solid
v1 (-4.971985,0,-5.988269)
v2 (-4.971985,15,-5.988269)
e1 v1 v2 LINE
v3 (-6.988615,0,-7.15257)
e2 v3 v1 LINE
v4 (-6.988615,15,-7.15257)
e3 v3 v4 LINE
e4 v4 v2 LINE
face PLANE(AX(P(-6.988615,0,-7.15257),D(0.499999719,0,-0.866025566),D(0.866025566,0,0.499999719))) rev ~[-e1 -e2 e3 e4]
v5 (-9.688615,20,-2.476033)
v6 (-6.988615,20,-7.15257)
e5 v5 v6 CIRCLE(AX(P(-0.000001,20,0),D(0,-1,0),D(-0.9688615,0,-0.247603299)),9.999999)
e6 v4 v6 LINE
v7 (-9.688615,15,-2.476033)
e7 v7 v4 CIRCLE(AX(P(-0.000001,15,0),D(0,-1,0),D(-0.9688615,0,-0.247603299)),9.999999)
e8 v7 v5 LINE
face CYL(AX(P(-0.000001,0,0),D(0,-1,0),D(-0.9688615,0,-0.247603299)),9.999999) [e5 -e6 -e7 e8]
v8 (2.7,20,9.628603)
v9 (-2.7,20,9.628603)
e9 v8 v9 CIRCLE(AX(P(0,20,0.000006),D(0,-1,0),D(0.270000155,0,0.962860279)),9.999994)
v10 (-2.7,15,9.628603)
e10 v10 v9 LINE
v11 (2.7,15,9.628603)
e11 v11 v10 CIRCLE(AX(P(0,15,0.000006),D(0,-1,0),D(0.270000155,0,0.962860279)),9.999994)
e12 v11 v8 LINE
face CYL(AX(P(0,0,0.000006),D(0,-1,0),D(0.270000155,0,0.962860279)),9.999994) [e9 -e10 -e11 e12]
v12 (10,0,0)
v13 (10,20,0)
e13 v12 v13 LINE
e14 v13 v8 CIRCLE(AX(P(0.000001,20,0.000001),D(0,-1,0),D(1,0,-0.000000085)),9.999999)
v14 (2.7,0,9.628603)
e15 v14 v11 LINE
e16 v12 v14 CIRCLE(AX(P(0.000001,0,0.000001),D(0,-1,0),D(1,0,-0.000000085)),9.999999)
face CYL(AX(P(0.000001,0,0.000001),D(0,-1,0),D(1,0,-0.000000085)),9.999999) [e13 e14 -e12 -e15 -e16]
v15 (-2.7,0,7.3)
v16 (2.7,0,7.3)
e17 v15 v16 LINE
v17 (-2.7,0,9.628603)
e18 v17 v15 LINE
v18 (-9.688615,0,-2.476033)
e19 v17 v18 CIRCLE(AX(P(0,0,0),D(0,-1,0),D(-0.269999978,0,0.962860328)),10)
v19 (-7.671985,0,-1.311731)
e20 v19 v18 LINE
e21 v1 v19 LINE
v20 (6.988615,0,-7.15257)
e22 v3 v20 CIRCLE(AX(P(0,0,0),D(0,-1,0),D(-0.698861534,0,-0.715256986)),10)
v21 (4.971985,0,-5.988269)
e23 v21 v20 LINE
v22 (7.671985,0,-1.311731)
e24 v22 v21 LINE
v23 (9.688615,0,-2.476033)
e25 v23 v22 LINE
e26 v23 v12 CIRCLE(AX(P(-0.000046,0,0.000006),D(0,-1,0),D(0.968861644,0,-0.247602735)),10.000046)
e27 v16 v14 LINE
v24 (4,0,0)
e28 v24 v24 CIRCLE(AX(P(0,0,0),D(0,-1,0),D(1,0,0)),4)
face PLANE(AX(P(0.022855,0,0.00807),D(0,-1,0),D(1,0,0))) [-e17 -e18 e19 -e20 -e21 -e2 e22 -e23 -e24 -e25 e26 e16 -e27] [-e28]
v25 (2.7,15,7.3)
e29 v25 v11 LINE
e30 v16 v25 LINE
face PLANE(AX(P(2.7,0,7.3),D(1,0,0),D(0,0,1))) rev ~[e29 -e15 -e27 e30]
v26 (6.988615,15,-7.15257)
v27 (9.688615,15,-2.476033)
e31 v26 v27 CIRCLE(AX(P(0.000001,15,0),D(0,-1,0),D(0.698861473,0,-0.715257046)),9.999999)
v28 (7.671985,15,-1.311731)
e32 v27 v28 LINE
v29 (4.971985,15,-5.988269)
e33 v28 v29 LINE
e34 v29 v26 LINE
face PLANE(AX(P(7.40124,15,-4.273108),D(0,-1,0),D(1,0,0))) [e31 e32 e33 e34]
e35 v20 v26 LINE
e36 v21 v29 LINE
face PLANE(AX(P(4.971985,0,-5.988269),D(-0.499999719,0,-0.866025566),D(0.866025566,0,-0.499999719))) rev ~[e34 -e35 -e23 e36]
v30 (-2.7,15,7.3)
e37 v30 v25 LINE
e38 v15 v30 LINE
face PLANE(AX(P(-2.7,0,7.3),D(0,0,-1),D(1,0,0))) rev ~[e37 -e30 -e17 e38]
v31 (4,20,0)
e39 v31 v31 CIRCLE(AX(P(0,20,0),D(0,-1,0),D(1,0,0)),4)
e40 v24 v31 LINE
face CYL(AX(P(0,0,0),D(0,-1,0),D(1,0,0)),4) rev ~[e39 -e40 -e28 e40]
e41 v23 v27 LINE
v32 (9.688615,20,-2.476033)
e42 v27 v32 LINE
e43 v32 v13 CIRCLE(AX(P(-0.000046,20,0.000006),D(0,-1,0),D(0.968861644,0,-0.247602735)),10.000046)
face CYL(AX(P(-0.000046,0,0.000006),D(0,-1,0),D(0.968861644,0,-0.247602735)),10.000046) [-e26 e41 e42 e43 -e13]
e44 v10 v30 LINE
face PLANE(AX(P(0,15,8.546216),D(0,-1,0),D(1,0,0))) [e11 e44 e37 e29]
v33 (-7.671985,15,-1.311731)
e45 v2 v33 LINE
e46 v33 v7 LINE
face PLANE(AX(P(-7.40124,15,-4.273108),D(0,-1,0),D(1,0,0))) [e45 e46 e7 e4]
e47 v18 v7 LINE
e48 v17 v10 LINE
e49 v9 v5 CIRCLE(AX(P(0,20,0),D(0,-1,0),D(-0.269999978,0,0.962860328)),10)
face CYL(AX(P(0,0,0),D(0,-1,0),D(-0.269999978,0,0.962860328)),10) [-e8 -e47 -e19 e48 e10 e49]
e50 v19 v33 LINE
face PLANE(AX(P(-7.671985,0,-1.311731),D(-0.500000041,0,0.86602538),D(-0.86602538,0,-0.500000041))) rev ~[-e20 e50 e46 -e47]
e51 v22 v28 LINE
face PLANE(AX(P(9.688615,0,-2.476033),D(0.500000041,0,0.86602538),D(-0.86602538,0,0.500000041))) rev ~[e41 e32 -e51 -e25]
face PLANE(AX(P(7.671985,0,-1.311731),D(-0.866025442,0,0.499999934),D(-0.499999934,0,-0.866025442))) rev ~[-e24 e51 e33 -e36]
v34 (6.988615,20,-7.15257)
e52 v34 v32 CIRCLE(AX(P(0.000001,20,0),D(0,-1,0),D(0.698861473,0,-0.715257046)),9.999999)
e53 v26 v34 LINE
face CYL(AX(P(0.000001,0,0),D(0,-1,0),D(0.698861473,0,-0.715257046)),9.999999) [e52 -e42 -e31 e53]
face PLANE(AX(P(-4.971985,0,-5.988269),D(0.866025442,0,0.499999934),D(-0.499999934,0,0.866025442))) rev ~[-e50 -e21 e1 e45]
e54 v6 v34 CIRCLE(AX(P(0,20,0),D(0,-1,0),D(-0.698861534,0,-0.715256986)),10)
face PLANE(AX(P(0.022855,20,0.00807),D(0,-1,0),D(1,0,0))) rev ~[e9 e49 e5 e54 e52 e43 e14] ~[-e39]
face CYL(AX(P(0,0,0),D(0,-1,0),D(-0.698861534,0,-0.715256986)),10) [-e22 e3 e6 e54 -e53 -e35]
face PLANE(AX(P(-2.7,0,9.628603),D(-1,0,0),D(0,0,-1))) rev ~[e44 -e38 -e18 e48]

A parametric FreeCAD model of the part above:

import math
import FreeCAD as App
import Part
import Sketcher
from FreeCAD import Vector
Q = App.Units.Quantity

doc = App.newDocument("Part")
body = doc.addObject("PartDesign::Body", "Body")

sketch1 = body.newObject("Sketcher::SketchObject", "Sketch")
sketch1.AttachmentSupport = (doc.getObject("XZ_Plane"), [""])
sketch1.MapMode = "FlatFace"
sketch1.addGeometry([
    Part.ArcOfCircle(Part.Circle(Vector(-0.000046, 0.000006, 0), Vector(0, 0, 1), 10.000046), math.radians(-14.3357), math.radians(-0.000033)),
    Part.ArcOfCircle(Part.Circle(Vector(0.000001, 0.000001, 0), Vector(0, 0, 1), 9.999999), math.radians(-0.000005), math.radians(74.335739)),
    Part.ArcOfCircle(Part.Circle(Vector(0, 0.000006, 0), Vector(0, 0, 1), 9.999994), math.radians(74.335724), math.radians(105.664276)),
    Part.ArcOfCircle(Part.Circle(Vector(0, 0, 0), Vector(0, 0, 1), 10), math.radians(105.664266), math.radians(194.335733)),
    Part.ArcOfCircle(Part.Circle(Vector(-0.000001, 0, 0), Vector(0, 0, 1), 9.999999), math.radians(-165.664267), math.radians(-134.335731)),
    Part.ArcOfCircle(Part.Circle(Vector(0, 0, 0), Vector(0, 0, 1), 10), math.radians(-134.335736), math.radians(-45.664264)),
    Part.ArcOfCircle(Part.Circle(Vector(0.000001, 0, 0), Vector(0, 0, 1), 9.999999), math.radians(-45.664269), math.radians(-14.335733)),
    Part.Circle(Vector(0, 0, 0), Vector(0, 0, 1), 4),
], False)
sketch1.addConstraint([
    Sketcher.Constraint("Coincident", 0, 2, 1, 1),
    Sketcher.Constraint("Coincident", 1, 2, 2, 1),
    Sketcher.Constraint("Coincident", 2, 2, 3, 1),
    Sketcher.Constraint("Coincident", 3, 2, 4, 1),
    Sketcher.Constraint("Coincident", 4, 2, 5, 1),
    Sketcher.Constraint("Coincident", 5, 2, 6, 1),
    Sketcher.Constraint("Coincident", 6, 2, 0, 1),
    Sketcher.Constraint("Coincident", 1, 3, -1, 1),
    Sketcher.Constraint("Coincident", 2, 3, -1, 1),
    Sketcher.Constraint("Coincident", 3, 3, -1, 1),
    Sketcher.Constraint("Coincident", 4, 3, -1, 1),
    Sketcher.Constraint("Coincident", 5, 3, -1, 1),
    Sketcher.Constraint("Coincident", 6, 3, -1, 1),
    Sketcher.Constraint("Coincident", 7, 3, -1, 1),
    Sketcher.Constraint("PointOnObject", 0, 2, -1),
    Sketcher.Constraint("Diameter", 7, Q("8 mm")),
    Sketcher.Constraint("Radius", 1, Q("9.999999 mm")),
    Sketcher.Constraint("DistanceX", -1, 1, 1, 2, Q("2.7 mm")),
    Sketcher.Constraint("DistanceX", 2, 2, -1, 1, Q("2.7 mm")),
    Sketcher.Constraint("DistanceX", 3, 2, 4, 2, Q("2.7 mm")),
    Sketcher.Constraint("DistanceX", 5, 2, 6, 2, Q("2.7 mm")),
    Sketcher.Constraint("Radius", 0, Q("10.000046 mm")),
    Sketcher.Constraint("DistanceY", 4, 2, -1, 1, Q("7.15257 mm")),
    Sketcher.Constraint("DistanceY", 5, 2, -1, 1, Q("7.15257 mm")),
])
pad1 = body.newObject("PartDesign::Pad", "Pad")
pad1.Profile = sketch1
pad1.Length = 20
pad1.Reversed = True

sketch2 = body.newObject("Sketcher::SketchObject", "Sketch001")
sketch2.AttachmentSupport = (doc.getObject("XZ_Plane"), [""])
sketch2.MapMode = "FlatFace"
sketch2.addGeometry([
    Part.LineSegment(Vector(-7.7, -1.3, 0), Vector(-9.7, -2.5, 0)),
    Part.ArcOfCircle(Part.Circle(Vector(0, 0, 0), Vector(0, 0, 1), 10), math.radians(-166), math.radians(-134)),
    Part.LineSegment(Vector(-7, -7.2, 0), Vector(-5, -6, 0)),
    Part.LineSegment(Vector(-5, -6, 0), Vector(-7.7, -1.3, 0)),
    Part.LineSegment(Vector(2.7, 7.3, 0), Vector(2.7, 9.6, 0)),
    Part.ArcOfCircle(Part.Circle(Vector(0, 0, 0), Vector(0, 0, 1), 10), math.radians(74), math.radians(106)),
    Part.LineSegment(Vector(-2.7, 9.6, 0), Vector(-2.7, 7.3, 0)),
    Part.LineSegment(Vector(-2.7, 7.3, 0), Vector(2.7, 7.3, 0)),
    Part.ArcOfCircle(Part.Circle(Vector(0, 0, 0), Vector(0, 0, 1), 10), math.radians(-46), math.radians(-14)),
    Part.LineSegment(Vector(9.7, -2.5, 0), Vector(7.7, -1.3, 0)),
    Part.LineSegment(Vector(7.7, -1.3, 0), Vector(5, -6, 0)),
    Part.LineSegment(Vector(5, -6, 0), Vector(7, -7.2, 0)),
], False)
sketch2.addConstraint([
    Sketcher.Constraint("Coincident", 0, 2, 1, 1),
    Sketcher.Constraint("Coincident", 1, 2, 2, 1),
    Sketcher.Constraint("Coincident", 2, 2, 3, 1),
    Sketcher.Constraint("Coincident", 3, 2, 0, 1),
    Sketcher.Constraint("Coincident", 4, 2, 5, 1),
    Sketcher.Constraint("Coincident", 5, 2, 6, 1),
    Sketcher.Constraint("Coincident", 6, 2, 7, 1),
    Sketcher.Constraint("Coincident", 7, 2, 4, 1),
    Sketcher.Constraint("Coincident", 8, 2, 9, 1),
    Sketcher.Constraint("Coincident", 9, 2, 10, 1),
    Sketcher.Constraint("Coincident", 10, 2, 11, 1),
    Sketcher.Constraint("Coincident", 11, 2, 8, 1),
    Sketcher.Constraint("Vertical", 4),
    Sketcher.Constraint("Vertical", 6),
    Sketcher.Constraint("Horizontal", 7),
    Sketcher.Constraint("Coincident", 1, 3, -1, 1),
    Sketcher.Constraint("Coincident", 5, 3, -1, 1),
    Sketcher.Constraint("Coincident", 8, 3, -1, 1),
    Sketcher.Constraint("Equal", 1, 8),
    Sketcher.Constraint("Symmetric", 3, 2, 9, 2, -2),
    Sketcher.Constraint("Symmetric", 2, 2, 10, 2, -2),
    Sketcher.Constraint("Parallel", 0, 2),
    Sketcher.Constraint("Perpendicular", 2, 3),
    Sketcher.Constraint("Perpendicular", 9, 10),
    Sketcher.Constraint("Perpendicular", 10, 11),
    Sketcher.Constraint("Horizontal", 4, 2, 5, 2),
    Sketcher.Constraint("Equal", 0, 2),
    Sketcher.Constraint("Radius", 1, Q("9.999999 mm")),
    Sketcher.Constraint("Angle", 0, Q("-149.999997 deg")),
    Sketcher.Constraint("DistanceX", 7, 1, 7, 2, Q("5.4 mm")),
    Sketcher.Constraint("Distance", 3, Q("5.400001 mm")),
    Sketcher.Constraint("DistanceY", -1, 1, 6, 2, Q("7.3 mm")),
    Sketcher.Constraint("Radius", 5, Q("9.999994 mm")),
    Sketcher.Constraint("DistanceY", 1, 2, 2, 2, Q("1.164301 mm")),
])
pocket1 = body.newObject("PartDesign::Pocket", "Pocket")
pocket1.Profile = sketch2
pocket1.Length = 15

doc.recompute()
